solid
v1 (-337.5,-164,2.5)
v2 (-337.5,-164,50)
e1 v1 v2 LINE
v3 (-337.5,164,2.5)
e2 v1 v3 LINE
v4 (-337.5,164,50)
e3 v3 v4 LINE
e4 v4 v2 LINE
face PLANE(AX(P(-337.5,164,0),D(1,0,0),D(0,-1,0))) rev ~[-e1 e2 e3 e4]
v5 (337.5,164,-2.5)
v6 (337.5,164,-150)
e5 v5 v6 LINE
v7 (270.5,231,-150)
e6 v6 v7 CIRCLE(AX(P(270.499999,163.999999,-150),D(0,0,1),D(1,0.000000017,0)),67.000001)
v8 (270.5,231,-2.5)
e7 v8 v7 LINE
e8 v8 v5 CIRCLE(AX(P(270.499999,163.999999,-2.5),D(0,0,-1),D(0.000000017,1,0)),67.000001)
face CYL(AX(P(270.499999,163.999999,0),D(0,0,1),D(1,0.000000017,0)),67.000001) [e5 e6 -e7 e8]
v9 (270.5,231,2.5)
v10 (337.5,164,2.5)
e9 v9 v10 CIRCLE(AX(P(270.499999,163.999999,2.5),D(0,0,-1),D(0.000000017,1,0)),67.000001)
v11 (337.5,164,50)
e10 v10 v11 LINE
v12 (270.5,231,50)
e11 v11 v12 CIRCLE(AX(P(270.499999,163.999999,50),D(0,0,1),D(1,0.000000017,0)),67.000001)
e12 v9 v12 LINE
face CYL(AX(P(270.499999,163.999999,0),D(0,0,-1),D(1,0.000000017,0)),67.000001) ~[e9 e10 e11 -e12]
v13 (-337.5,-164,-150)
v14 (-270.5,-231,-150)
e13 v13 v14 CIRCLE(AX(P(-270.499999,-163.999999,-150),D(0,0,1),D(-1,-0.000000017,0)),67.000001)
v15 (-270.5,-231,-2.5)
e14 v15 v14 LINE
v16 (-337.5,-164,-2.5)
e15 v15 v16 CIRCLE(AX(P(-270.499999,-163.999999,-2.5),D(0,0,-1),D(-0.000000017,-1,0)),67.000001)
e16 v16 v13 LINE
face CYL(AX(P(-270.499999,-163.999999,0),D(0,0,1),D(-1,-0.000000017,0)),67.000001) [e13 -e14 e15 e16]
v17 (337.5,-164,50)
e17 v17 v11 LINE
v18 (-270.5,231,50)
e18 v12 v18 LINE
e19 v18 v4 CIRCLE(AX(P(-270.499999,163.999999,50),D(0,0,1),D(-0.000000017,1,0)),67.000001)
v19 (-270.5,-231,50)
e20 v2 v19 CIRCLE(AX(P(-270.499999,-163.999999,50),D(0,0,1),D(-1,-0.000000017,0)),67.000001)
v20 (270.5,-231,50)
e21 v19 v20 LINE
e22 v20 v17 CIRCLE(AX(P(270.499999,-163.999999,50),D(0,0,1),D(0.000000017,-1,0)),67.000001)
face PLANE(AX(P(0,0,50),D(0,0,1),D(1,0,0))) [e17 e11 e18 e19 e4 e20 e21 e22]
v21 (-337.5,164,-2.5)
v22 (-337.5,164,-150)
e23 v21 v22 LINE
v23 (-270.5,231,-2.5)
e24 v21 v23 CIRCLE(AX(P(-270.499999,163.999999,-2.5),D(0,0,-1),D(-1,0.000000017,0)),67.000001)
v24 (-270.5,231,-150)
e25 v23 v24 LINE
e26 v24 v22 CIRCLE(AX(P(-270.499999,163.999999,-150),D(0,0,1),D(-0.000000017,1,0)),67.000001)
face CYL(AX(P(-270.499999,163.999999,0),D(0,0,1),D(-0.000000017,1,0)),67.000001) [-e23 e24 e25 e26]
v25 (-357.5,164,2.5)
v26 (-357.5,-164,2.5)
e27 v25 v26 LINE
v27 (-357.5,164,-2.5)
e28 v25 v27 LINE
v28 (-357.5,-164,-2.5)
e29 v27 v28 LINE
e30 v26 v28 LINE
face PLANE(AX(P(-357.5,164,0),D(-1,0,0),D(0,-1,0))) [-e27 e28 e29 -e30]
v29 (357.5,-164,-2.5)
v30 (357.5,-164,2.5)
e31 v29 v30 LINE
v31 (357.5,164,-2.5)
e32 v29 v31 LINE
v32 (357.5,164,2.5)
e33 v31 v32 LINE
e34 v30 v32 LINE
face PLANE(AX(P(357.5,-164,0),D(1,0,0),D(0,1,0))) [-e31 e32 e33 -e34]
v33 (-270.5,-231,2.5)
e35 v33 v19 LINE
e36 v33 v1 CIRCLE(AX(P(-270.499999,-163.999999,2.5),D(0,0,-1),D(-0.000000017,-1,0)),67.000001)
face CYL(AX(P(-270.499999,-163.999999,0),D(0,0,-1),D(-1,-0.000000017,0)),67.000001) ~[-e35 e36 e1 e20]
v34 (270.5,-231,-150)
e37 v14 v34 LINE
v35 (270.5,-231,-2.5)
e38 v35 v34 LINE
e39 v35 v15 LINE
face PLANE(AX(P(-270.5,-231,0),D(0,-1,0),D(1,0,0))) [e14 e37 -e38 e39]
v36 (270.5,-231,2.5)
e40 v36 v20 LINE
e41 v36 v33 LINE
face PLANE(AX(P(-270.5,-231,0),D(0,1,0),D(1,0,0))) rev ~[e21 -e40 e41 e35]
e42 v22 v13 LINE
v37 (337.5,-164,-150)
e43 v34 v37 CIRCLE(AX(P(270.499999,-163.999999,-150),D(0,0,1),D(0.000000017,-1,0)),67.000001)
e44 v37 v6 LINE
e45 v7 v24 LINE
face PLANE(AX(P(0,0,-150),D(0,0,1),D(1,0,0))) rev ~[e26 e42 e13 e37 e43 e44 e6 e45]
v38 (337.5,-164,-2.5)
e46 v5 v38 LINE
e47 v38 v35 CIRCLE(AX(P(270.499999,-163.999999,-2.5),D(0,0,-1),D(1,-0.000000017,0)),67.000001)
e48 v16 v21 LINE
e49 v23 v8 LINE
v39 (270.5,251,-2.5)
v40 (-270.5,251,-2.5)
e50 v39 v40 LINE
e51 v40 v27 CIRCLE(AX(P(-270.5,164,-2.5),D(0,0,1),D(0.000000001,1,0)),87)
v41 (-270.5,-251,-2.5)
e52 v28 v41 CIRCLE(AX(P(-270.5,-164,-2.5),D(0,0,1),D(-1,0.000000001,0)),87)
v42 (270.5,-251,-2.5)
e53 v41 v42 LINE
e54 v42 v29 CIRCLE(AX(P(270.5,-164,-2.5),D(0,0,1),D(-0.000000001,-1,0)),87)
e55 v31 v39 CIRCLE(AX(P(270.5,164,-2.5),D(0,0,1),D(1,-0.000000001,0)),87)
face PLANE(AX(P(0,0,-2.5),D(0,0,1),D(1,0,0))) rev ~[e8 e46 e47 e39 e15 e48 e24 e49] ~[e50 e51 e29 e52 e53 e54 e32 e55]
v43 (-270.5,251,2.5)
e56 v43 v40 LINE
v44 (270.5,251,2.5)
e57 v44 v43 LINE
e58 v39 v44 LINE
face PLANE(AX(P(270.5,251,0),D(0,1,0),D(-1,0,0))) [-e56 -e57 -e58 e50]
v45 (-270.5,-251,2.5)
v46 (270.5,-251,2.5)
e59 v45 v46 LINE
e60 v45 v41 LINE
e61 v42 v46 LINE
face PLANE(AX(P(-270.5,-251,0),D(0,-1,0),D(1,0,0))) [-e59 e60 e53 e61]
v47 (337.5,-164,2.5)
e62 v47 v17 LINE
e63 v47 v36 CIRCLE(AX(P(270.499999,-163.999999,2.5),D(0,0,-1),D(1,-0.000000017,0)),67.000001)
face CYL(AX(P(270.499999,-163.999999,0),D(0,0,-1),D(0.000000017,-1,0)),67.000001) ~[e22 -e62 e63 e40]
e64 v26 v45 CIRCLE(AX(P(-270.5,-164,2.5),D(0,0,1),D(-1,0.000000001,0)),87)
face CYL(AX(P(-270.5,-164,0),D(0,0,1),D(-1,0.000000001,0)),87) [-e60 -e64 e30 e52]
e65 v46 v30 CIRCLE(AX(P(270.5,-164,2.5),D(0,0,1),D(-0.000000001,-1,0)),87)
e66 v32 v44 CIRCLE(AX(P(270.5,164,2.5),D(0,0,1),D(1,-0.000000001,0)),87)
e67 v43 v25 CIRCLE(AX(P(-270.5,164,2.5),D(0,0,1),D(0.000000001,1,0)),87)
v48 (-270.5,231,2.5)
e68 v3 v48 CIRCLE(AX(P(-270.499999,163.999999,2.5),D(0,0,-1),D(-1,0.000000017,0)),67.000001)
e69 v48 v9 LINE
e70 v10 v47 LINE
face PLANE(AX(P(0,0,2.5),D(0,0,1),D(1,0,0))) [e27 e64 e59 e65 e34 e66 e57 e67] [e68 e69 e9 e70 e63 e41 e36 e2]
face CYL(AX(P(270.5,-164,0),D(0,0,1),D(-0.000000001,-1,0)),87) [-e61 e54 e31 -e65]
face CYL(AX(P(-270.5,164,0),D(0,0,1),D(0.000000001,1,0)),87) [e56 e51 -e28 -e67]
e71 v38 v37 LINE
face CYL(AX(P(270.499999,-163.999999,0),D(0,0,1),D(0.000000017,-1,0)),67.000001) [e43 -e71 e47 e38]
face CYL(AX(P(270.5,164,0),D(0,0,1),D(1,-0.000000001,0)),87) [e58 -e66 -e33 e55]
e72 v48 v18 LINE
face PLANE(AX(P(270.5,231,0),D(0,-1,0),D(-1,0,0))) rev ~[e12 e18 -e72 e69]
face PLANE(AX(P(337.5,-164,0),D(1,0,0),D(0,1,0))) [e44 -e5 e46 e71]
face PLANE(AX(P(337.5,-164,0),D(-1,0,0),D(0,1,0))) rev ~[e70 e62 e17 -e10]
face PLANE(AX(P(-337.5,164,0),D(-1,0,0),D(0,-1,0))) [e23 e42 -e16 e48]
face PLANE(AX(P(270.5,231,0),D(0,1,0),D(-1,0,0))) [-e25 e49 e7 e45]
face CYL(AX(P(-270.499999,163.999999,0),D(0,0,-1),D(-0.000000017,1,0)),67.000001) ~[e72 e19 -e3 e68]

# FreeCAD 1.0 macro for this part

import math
import FreeCAD as App
import Part
import Sketcher
Q = App.Units.Quantity

doc = App.newDocument("Part")
params = doc.addObject("Spreadsheet::Sheet", "Params")
for row, (alias, value) in enumerate([
    ("sketch1_radius", "87 mm"),
    ("sketch1_radius2", "67.000001 mm"),
    ("sketch1_width", "541 mm"),
    ("sketch1_height", "328 mm"),
    ("pad1_length", "5 mm"),
    ("sketch2_radius", "67.000001 mm"),
    ("sketch2_width", "541 mm"),
    ("sketch2_height", "328 mm"),
    ("pad2_length", "50 mm"),
    ("sketch3_radius", "67.000001 mm"),
    ("sketch3_width", "541 mm"),
    ("sketch3_height", "328 mm"),
    ("pad3_length", "150 mm"),
], start=1):
    params.set(f"A{row}", alias)
    params.set(f"B{row}", "=" + value)
    params.setAlias(f"B{row}", alias)

body = doc.addObject("PartDesign::Body", "Body")

sketch1 = body.newObject("Sketcher::SketchObject", "Sketch")
sketch1.AttachmentSupport = (doc.getObject("XY_Plane"), [""])
sketch1.MapMode = "FlatFace"
sketch1.addGeometry([
    Part.LineSegment(App.Vector(-270, -251, 0), App.Vector(270, -251, 0)),
    Part.ArcOfCircle(Part.Circle(App.Vector(271, -164, 0), App.Vector(0, 0, 1), 87), math.radians(-90), math.radians(0)),
    Part.LineSegment(App.Vector(358, -164, 0), App.Vector(358, 164, 0)),
    Part.ArcOfCircle(Part.Circle(App.Vector(271, 164, 0), App.Vector(0, 0, 1), 87), math.radians(0), math.radians(90)),
    Part.LineSegment(App.Vector(270, 251, 0), App.Vector(-270, 251, 0)),
    Part.ArcOfCircle(Part.Circle(App.Vector(-271, 164, 0), App.Vector(0, 0, 1), 87), math.radians(90), math.radians(180)),
    Part.LineSegment(App.Vector(-358, 164, 0), App.Vector(-358, -164, 0)),
    Part.ArcOfCircle(Part.Circle(App.Vector(-271, -164, 0), App.Vector(0, 0, 1), 87), math.radians(180), math.radians(270)),
    Part.LineSegment(App.Vector(338, 164, 0), App.Vector(338, -164, 0)),
    Part.ArcOfCircle(Part.Circle(App.Vector(270, -164, 0), App.Vector(0, 0, 1), 67), math.radians(-90), math.radians(0)),
    Part.LineSegment(App.Vector(270, -231, 0), App.Vector(-270, -231, 0)),
    Part.ArcOfCircle(Part.Circle(App.Vector(-270, -164, 0), App.Vector(0, 0, 1), 67), math.radians(-180), math.radians(-90)),
    Part.LineSegment(App.Vector(-338, -164, 0), App.Vector(-338, 164, 0)),
    Part.ArcOfCircle(Part.Circle(App.Vector(-270, 164, 0), App.Vector(0, 0, 1), 67), math.radians(90), math.radians(180)),
    Part.LineSegment(App.Vector(-270, 231, 0), App.Vector(270, 231, 0)),
    Part.ArcOfCircle(Part.Circle(App.Vector(270, 164, 0), App.Vector(0, 0, 1), 67), math.radians(0), math.radians(90)),
], False)
sketch1.addConstraint([
    Sketcher.Constraint("Tangent", 0, 2, 1, 1),
    Sketcher.Constraint("Tangent", 1, 2, 2, 1),
    Sketcher.Constraint("Tangent", 2, 2, 3, 1),
    Sketcher.Constraint("Tangent", 3, 2, 4, 1),
    Sketcher.Constraint("Tangent", 4, 2, 5, 1),
    Sketcher.Constraint("Tangent", 5, 2, 6, 1),
    Sketcher.Constraint("Tangent", 6, 2, 7, 1),
    Sketcher.Constraint("Tangent", 7, 2, 0, 1),
    Sketcher.Constraint("Tangent", 8, 2, 9, 2),
    Sketcher.Constraint("Tangent", 9, 1, 10, 1),
    Sketcher.Constraint("Tangent", 10, 2, 11, 2),
    Sketcher.Constraint("Tangent", 11, 1, 12, 1),
    Sketcher.Constraint("Tangent", 12, 2, 13, 2),
    Sketcher.Constraint("Tangent", 13, 1, 14, 1),
    Sketcher.Constraint("Tangent", 14, 2, 15, 2),
    Sketcher.Constraint("Tangent", 15, 1, 8, 1),
    Sketcher.Constraint("Horizontal", 0),
    Sketcher.Constraint("Vertical", 2),
    Sketcher.Constraint("Horizontal", 4),
    Sketcher.Constraint("Vertical", 6),
    Sketcher.Constraint("Vertical", 8),
    Sketcher.Constraint("Horizontal", 10),
    Sketcher.Constraint("Vertical", 12),
    Sketcher.Constraint("Horizontal", 14),
    Sketcher.Constraint("Coincident", 9, 3, 1, 3),
    Sketcher.Constraint("Coincident", 11, 3, 7, 3),
    Sketcher.Constraint("Coincident", 13, 3, 5, 3),
    Sketcher.Constraint("Equal", 1, 3),
    Sketcher.Constraint("Equal", 3, 5),
    Sketcher.Constraint("Equal", 5, 7),
    Sketcher.Constraint("Equal", 13, 15),
    Sketcher.Constraint("Symmetric", 1, 3, 5, 3, -1, 1),
    Sketcher.Constraint("Radius", 1, Q("87 mm")),
    Sketcher.Constraint("Radius", 9, Q("67.000001 mm")),
    Sketcher.Constraint("DistanceX", 0, 1, 0, 2, Q("541 mm")),
    Sketcher.Constraint("DistanceY", 2, 1, 2, 2, Q("328 mm")),
])
sketch1.setExpression("Constraints[32]", "Params.sketch1_radius")
sketch1.setExpression("Constraints[33]", "Params.sketch1_radius2")
sketch1.setExpression("Constraints[34]", "Params.sketch1_width")
sketch1.setExpression("Constraints[35]", "Params.sketch1_height")
pad1 = body.newObject("PartDesign::Pad", "Pad")
pad1.Profile = sketch1
pad1.setExpression("Length", "Params.pad1_length")
pad1.Midplane = True

sketch2 = body.newObject("Sketcher::SketchObject", "Sketch001")
sketch2.AttachmentSupport = (doc.getObject("XY_Plane"), [""])
sketch2.MapMode = "FlatFace"
sketch2.addGeometry([
    Part.LineSegment(App.Vector(-270, -231, 0), App.Vector(270, -231, 0)),
    Part.ArcOfCircle(Part.Circle(App.Vector(270, -164, 0), App.Vector(0, 0, 1), 67), math.radians(-90), math.radians(0)),
    Part.LineSegment(App.Vector(338, -164, 0), App.Vector(338, 164, 0)),
    Part.ArcOfCircle(Part.Circle(App.Vector(270, 164, 0), App.Vector(0, 0, 1), 67), math.radians(0), math.radians(90)),
    Part.LineSegment(App.Vector(270, 231, 0), App.Vector(-270, 231, 0)),
    Part.ArcOfCircle(Part.Circle(App.Vector(-270, 164, 0), App.Vector(0, 0, 1), 67), math.radians(90), math.radians(180)),
    Part.LineSegment(App.Vector(-338, 164, 0), App.Vector(-338, -164, 0)),
    Part.ArcOfCircle(Part.Circle(App.Vector(-270, -164, 0), App.Vector(0, 0, 1), 67), math.radians(-180), math.radians(-90)),
], False)
sketch2.addConstraint([
    Sketcher.Constraint("Tangent", 0, 2, 1, 1),
    Sketcher.Constraint("Tangent", 1, 2, 2, 1),
    Sketcher.Constraint("Tangent", 2, 2, 3, 1),
    Sketcher.Constraint("Tangent", 3, 2, 4, 1),
    Sketcher.Constraint("Tangent", 4, 2, 5, 1),
    Sketcher.Constraint("Tangent", 5, 2, 6, 1),
    Sketcher.Constraint("Tangent", 6, 2, 7, 1),
    Sketcher.Constraint("Tangent", 7, 2, 0, 1),
    Sketcher.Constraint("Horizontal", 0),
    Sketcher.Constraint("Vertical", 2),
    Sketcher.Constraint("Horizontal", 4),
    Sketcher.Constraint("Vertical", 6),
    Sketcher.Constraint("Equal", 1, 3),
    Sketcher.Constraint("Equal", 3, 5),
    Sketcher.Constraint("Equal", 5, 7),
    Sketcher.Constraint("Symmetric", 1, 3, 5, 3, -1, 1),
    Sketcher.Constraint("Radius", 1, Q("67.000001 mm")),
    Sketcher.Constraint("DistanceX", 0, 1, 0, 2, Q("541 mm")),
    Sketcher.Constraint("DistanceY", 2, 1, 2, 2, Q("328 mm")),
])
sketch2.setExpression("Constraints[16]", "Params.sketch2_radius")
sketch2.setExpression("Constraints[17]", "Params.sketch2_width")
sketch2.setExpression("Constraints[18]", "Params.sketch2_height")
pad2 = body.newObject("PartDesign::Pad", "Pad001")
pad2.Profile = sketch2
pad2.setExpression("Length", "Params.pad2_length")

sketch3 = body.newObject("Sketcher::SketchObject", "Sketch002")
sketch3.AttachmentSupport = (doc.getObject("XY_Plane"), [""])
sketch3.MapMode = "FlatFace"
sketch3.addGeometry([
    Part.LineSegment(App.Vector(-270, -231, 0), App.Vector(270, -231, 0)),
    Part.ArcOfCircle(Part.Circle(App.Vector(270, -164, 0), App.Vector(0, 0, 1), 67), math.radians(-90), math.radians(0)),
    Part.LineSegment(App.Vector(338, -164, 0), App.Vector(338, 164, 0)),
    Part.ArcOfCircle(Part.Circle(App.Vector(270, 164, 0), App.Vector(0, 0, 1), 67), math.radians(0), math.radians(90)),
    Part.LineSegment(App.Vector(270, 231, 0), App.Vector(-270, 231, 0)),
    Part.ArcOfCircle(Part.Circle(App.Vector(-270, 164, 0), App.Vector(0, 0, 1), 67), math.radians(90), math.radians(180)),
    Part.LineSegment(App.Vector(-338, 164, 0), App.Vector(-338, -164, 0)),
    Part.ArcOfCircle(Part.Circle(App.Vector(-270, -164, 0), App.Vector(0, 0, 1), 67), math.radians(-180), math.radians(-90)),
], False)
sketch3.addConstraint([
    Sketcher.Constraint("Tangent", 0, 2, 1, 1),
    Sketcher.Constraint("Tangent", 1, 2, 2, 1),
    Sketcher.Constraint("Tangent", 2, 2, 3, 1),
    Sketcher.Constraint("Tangent", 3, 2, 4, 1),
    Sketcher.Constraint("Tangent", 4, 2, 5, 1),
    Sketcher.Constraint("Tangent", 5, 2, 6, 1),
    Sketcher.Constraint("Tangent", 6, 2, 7, 1),
    Sketcher.Constraint("Tangent", 7, 2, 0, 1),
    Sketcher.Constraint("Horizontal", 0),
    Sketcher.Constraint("Vertical", 2),
    Sketcher.Constraint("Horizontal", 4),
    Sketcher.Constraint("Vertical", 6),
    Sketcher.Constraint("Equal", 1, 3),
    Sketcher.Constraint("Equal", 3, 5),
    Sketcher.Constraint("Equal", 5, 7),
    Sketcher.Constraint("Symmetric", 1, 3, 5, 3, -1, 1),
    Sketcher.Constraint("Radius", 1, Q("67.000001 mm")),
    Sketcher.Constraint("DistanceX", 0, 1, 0, 2, Q("541 mm")),
    Sketcher.Constraint("DistanceY", 2, 1, 2, 2, Q("328 mm")),
])
sketch3.setExpression("Constraints[16]", "Params.sketch3_radius")
sketch3.setExpression("Constraints[17]", "Params.sketch3_width")
sketch3.setExpression("Constraints[18]", "Params.sketch3_height")
pad3 = body.newObject("PartDesign::Pad", "Pad002")
pad3.Profile = sketch3
pad3.setExpression("Length", "Params.pad3_length")
pad3.Reversed = True

doc.recompute()
